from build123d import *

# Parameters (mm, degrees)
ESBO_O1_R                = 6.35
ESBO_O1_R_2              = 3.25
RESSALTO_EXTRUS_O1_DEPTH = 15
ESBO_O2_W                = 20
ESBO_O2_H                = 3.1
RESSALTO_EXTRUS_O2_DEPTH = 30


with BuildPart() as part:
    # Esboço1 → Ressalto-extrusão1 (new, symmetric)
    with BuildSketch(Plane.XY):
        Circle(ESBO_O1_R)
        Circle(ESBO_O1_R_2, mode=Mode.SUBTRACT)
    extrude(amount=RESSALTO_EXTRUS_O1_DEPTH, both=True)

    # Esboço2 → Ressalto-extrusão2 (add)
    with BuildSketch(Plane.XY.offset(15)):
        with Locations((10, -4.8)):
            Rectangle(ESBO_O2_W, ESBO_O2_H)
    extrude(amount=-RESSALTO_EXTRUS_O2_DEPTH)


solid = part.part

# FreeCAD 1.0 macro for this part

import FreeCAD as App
import Part
import Sketcher
from FreeCAD import Vector

doc = App.newDocument("Part")
body = doc.addObject("PartDesign::Body", "Body")

# Sketch on XY plane
sketch1 = body.newObject("Sketcher::SketchObject", "Sketch")
sketch1.AttachmentSupport = (doc.getObject("XY_Plane"), [""])
sketch1.MapMode = "FlatFace"
sketch1.addGeometry(Part.Circle(Vector(0, 0, 0), Vector(0, 0, 1), 6.35), False)
sketch1.addGeometry(Part.Circle(Vector(0, 0, 0), Vector(0, 0, 1), 3.25), False)
sketch1.addConstraint(Sketcher.Constraint("Coincident", 0, 3, -1, 1))
sketch1.addConstraint(Sketcher.Constraint("Coincident", 1, 3, -1, 1))
sketch1.addConstraint(Sketcher.Constraint("Diameter", 0, 12.7))
sketch1.addConstraint(Sketcher.Constraint("Diameter", 1, 6.5))
pad1 = body.newObject("PartDesign::Pad", "Pad")
pad1.Profile = sketch1
pad1.Length = 30
pad1.Midplane = True

# Sketch on XY plane
sketch2 = body.newObject("Sketcher::SketchObject", "Sketch001")
sketch2.AttachmentSupport = (doc.getObject("XY_Plane"), [""])
sketch2.MapMode = "FlatFace"
sketch2.AttachmentOffset = App.Placement(Vector(0, 0, 15), App.Rotation())
sketch2.addGeometry(Part.LineSegment(Vector(0, -3.25, 0), Vector(0, -6.35, 0)), False)
sketch2.addGeometry(Part.LineSegment(Vector(0, -6.35, 0), Vector(20, -6.35, 0)), False)
sketch2.addGeometry(Part.LineSegment(Vector(20, -6.35, 0), Vector(20, -3.25, 0)), False)
sketch2.addGeometry(Part.LineSegment(Vector(20, -3.25, 0), Vector(0, -3.25, 0)), False)
sketch2.addConstraint(Sketcher.Constraint("Coincident", 0, 2, 1, 1))
sketch2.addConstraint(Sketcher.Constraint("Coincident", 1, 2, 2, 1))
sketch2.addConstraint(Sketcher.Constraint("Coincident", 2, 2, 3, 1))
sketch2.addConstraint(Sketcher.Constraint("Coincident", 3, 2, 0, 1))
sketch2.addConstraint(Sketcher.Constraint("Vertical", 0))
sketch2.addConstraint(Sketcher.Constraint("Horizontal", 1))
sketch2.addConstraint(Sketcher.Constraint("Vertical", 2))
sketch2.addConstraint(Sketcher.Constraint("Horizontal", 3))
sketch2.addConstraint(Sketcher.Constraint("PointOnObject", 0, 2, -2))
sketch2.addConstraint(Sketcher.Constraint("DistanceX", 1, 1, 1, 2, 20.0))
sketch2.addConstraint(Sketcher.Constraint("DistanceY", 0, 2, 0, 1, 3.1))
sketch2.addConstraint(Sketcher.Constraint("DistanceY", 0, 2, -1, 1, 6.35))
pad2 = body.newObject("PartDesign::Pad", "Pad001")
pad2.Profile = sketch2
pad2.Length = 30
pad2.Reversed = True

doc.recompute()
